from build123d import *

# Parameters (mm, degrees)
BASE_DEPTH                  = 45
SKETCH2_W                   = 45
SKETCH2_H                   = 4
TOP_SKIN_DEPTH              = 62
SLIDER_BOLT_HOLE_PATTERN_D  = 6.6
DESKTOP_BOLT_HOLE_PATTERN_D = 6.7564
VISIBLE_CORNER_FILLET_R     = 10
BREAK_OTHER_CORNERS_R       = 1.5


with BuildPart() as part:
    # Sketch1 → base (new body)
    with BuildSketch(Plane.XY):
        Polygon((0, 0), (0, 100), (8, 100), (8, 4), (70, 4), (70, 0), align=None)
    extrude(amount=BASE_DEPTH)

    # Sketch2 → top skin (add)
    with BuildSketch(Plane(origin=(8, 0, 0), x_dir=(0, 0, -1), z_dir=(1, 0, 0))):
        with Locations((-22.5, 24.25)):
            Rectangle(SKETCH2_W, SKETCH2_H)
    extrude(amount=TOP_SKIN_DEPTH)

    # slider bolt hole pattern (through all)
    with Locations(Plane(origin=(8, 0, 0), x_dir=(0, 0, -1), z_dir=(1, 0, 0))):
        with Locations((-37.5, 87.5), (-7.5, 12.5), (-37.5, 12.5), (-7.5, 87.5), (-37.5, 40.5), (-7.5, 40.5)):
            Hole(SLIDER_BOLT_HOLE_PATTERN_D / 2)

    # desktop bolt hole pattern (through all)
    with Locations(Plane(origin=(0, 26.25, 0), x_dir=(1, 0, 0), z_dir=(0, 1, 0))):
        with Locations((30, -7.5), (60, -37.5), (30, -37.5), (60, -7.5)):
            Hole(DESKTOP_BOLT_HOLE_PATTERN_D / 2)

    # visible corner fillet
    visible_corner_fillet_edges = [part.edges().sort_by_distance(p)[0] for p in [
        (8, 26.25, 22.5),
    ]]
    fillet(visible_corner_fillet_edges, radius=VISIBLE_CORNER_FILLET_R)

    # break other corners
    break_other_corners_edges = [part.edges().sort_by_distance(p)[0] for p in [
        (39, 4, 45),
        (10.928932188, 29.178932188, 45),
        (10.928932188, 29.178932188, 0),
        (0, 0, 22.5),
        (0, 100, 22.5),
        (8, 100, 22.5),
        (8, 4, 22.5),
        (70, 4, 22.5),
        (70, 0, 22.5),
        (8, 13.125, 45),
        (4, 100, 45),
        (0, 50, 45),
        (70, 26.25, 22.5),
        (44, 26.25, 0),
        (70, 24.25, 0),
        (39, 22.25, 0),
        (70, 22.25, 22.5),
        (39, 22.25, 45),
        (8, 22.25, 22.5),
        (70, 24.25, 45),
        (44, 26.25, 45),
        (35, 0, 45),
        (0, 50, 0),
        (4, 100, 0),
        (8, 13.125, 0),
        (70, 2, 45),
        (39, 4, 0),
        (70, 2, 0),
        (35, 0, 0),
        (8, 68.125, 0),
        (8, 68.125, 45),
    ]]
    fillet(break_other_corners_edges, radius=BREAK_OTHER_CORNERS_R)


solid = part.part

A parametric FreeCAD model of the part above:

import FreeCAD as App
import Part
import Sketcher
from FreeCAD import Vector


def edges_at(feature, points):
    """Names of the edges that pass closest to the given points."""
    edges = feature.Shape.Edges
    near = lambda p: min(range(len(edges)), key=lambda i: edges[i].distToShape(Part.Vertex(*p))[0])
    return sorted({f"Edge{near(p) + 1}" for p in points})

doc = App.newDocument("Part")
body = doc.addObject("PartDesign::Body", "Body")

sketch1 = doc.addObject("Sketcher::SketchObject", "Sketch")
body.addObject(sketch1)
sketch1.AttachmentSupport = (doc.XY_Plane, [""])
sketch1.MapMode = "FlatFace"
sketch1.addGeometry([
    Part.LineSegment(Vector(0, 100, 0), Vector(0, 0, 0)),
    Part.LineSegment(Vector(0, 0, 0), Vector(70, 0, 0)),
    Part.LineSegment(Vector(70, 0, 0), Vector(70, 4, 0)),
    Part.LineSegment(Vector(70, 4, 0), Vector(8, 4, 0)),
    Part.LineSegment(Vector(8, 4, 0), Vector(8, 100, 0)),
    Part.LineSegment(Vector(8, 100, 0), Vector(0, 100, 0)),
], False)
sketch1.addConstraint([
    Sketcher.Constraint("Coincident", 0, 2, 1, 1),
    Sketcher.Constraint("Coincident", 1, 2, 2, 1),
    Sketcher.Constraint("Coincident", 2, 2, 3, 1),
    Sketcher.Constraint("Coincident", 3, 2, 4, 1),
    Sketcher.Constraint("Coincident", 4, 2, 5, 1),
    Sketcher.Constraint("Coincident", 5, 2, 0, 1),
    Sketcher.Constraint("Vertical", 0),
    Sketcher.Constraint("Horizontal", 1),
    Sketcher.Constraint("Vertical", 2),
    Sketcher.Constraint("Horizontal", 3),
    Sketcher.Constraint("Vertical", 4),
    Sketcher.Constraint("Horizontal", 5),
    Sketcher.Constraint("Coincident", 0, 2, -1, 1),
    Sketcher.Constraint("DistanceX", 1, 1, 1, 2, 70.0),
    Sketcher.Constraint("DistanceX", 3, 2, 3, 1, 62.0),
    Sketcher.Constraint("DistanceY", 0, 2, 0, 1, 100.0),
    Sketcher.Constraint("DistanceY", 2, 1, 2, 2, 4.0),
])
pad1 = doc.addObject("PartDesign::Pad", "Pad")
body.addObject(pad1)
pad1.Profile = sketch1
pad1.Length = 45

sketch2 = doc.addObject("Sketcher::SketchObject", "Sketch001")
body.addObject(sketch2)
sketch2.AttachmentSupport = (doc.YZ_Plane, [""])
sketch2.MapMode = "FlatFace"
sketch2.AttachmentOffset = App.Placement(Vector(0, 0, 8), App.Rotation())
sketch2.addGeometry([
    Part.LineSegment(Vector(26.2, 45, 0), Vector(22.2, 45, 0)),
    Part.LineSegment(Vector(22.2, 45, 0), Vector(22.2, 0, 0)),
    Part.LineSegment(Vector(22.2, 0, 0), Vector(26.2, 0, 0)),
    Part.LineSegment(Vector(26.2, 0, 0), Vector(26.2, 45, 0)),
], False)
sketch2.addConstraint([
    Sketcher.Constraint("Coincident", 0, 2, 1, 1),
    Sketcher.Constraint("Coincident", 1, 2, 2, 1),
    Sketcher.Constraint("Coincident", 2, 2, 3, 1),
    Sketcher.Constraint("Coincident", 3, 2, 0, 1),
    Sketcher.Constraint("Horizontal", 0),
    Sketcher.Constraint("Vertical", 1),
    Sketcher.Constraint("Horizontal", 2),
    Sketcher.Constraint("Vertical", 3),
    Sketcher.Constraint("PointOnObject", 1, 2, -1),
    Sketcher.Constraint("DistanceX", 0, 2, 0, 1, 4.0),
    Sketcher.Constraint("DistanceY", 1, 2, 1, 1, 45.0),
    Sketcher.Constraint("DistanceX", -1, 1, 0, 2, 22.25),
])
pad2 = doc.addObject("PartDesign::Pad", "Pad001")
body.addObject(pad2)
pad2.Profile = sketch2
pad2.Length = 62

sketch3 = doc.addObject("Sketcher::SketchObject", "Sketch002")
body.addObject(sketch3)
sketch3.AttachmentSupport = (doc.YZ_Plane, [""])
sketch3.MapMode = "FlatFace"
sketch3.AttachmentOffset = App.Placement(Vector(0, 0, 8), App.Rotation())
sketch3.addGeometry([
    Part.Circle(Vector(87.5, 37.5, 0), Vector(0, 0, 1), 3.3),
    Part.Circle(Vector(12.5, 7.5, 0), Vector(0, 0, 1), 3.3),
    Part.Circle(Vector(12.5, 37.5, 0), Vector(0, 0, 1), 3.3),
    Part.Circle(Vector(87.5, 7.5, 0), Vector(0, 0, 1), 3.3),
    Part.Circle(Vector(40.5, 37.5, 0), Vector(0, 0, 1), 3.3),
    Part.Circle(Vector(40.5, 7.5, 0), Vector(0, 0, 1), 3.3),
], False)
sketch3.addConstraint([
    Sketcher.Constraint("Equal", 0, 1),
    Sketcher.Constraint("Equal", 1, 2),
    Sketcher.Constraint("Equal", 2, 3),
    Sketcher.Constraint("Equal", 3, 4),
    Sketcher.Constraint("Equal", 4, 5),
    Sketcher.Constraint("Horizontal", 0, 3, 2, 3),
    Sketcher.Constraint("Horizontal", 1, 3, 3, 3),
    Sketcher.Constraint("Horizontal", 2, 3, 4, 3),
    Sketcher.Constraint("Horizontal", 3, 3, 5, 3),
    Sketcher.Constraint("Vertical", 1, 3, 2, 3),
    Sketcher.Constraint("Vertical", 0, 3, 3, 3),
    Sketcher.Constraint("Vertical", 4, 3, 5, 3),
    Sketcher.Constraint("Diameter", 0, 6.6),
    Sketcher.Constraint("DistanceX", 1, 3, 0, 3, 75.0),
    Sketcher.Constraint("DistanceY", 1, 3, 0, 3, 30.0),
    Sketcher.Constraint("DistanceX", 2, 3, 4, 3, 28.0),
    Sketcher.Constraint("DistanceX", -1, 1, 0, 3, 87.5),
    Sketcher.Constraint("DistanceY", -1, 1, 0, 3, 37.5),
])
doc.recompute()
hole = doc.addObject("PartDesign::Hole", "Hole")
body.addObject(hole)
hole.Profile = sketch3
hole.ThreadType = "None"
hole.Diameter = 6.6
hole.DepthType = "ThroughAll"

sketch4 = doc.addObject("Sketcher::SketchObject", "Sketch003")
body.addObject(sketch4)
sketch4.AttachmentSupport = (doc.XZ_Plane, [""])
sketch4.MapMode = "FlatFace"
sketch4.AttachmentOffset = App.Placement(Vector(0, 0, -26.25), App.Rotation())
sketch4.addGeometry([
    Part.Circle(Vector(30, 7.5, 0), Vector(0, 0, 1), 3.4),
    Part.Circle(Vector(60, 37.5, 0), Vector(0, 0, 1), 3.4),
    Part.Circle(Vector(30, 37.5, 0), Vector(0, 0, 1), 3.4),
    Part.Circle(Vector(60, 7.5, 0), Vector(0, 0, 1), 3.4),
], False)
sketch4.addConstraint([
    Sketcher.Constraint("Equal", 0, 1),
    Sketcher.Constraint("Equal", 1, 2),
    Sketcher.Constraint("Equal", 2, 3),
    Sketcher.Constraint("Horizontal", 1, 3, 2, 3),
    Sketcher.Constraint("Horizontal", 0, 3, 3, 3),
    Sketcher.Constraint("Vertical", 0, 3, 2, 3),
    Sketcher.Constraint("Vertical", 1, 3, 3, 3),
    Sketcher.Constraint("DistanceX", -1, 1, 0, 3, 30.0),
    Sketcher.Constraint("DistanceX", -1, 1, 1, 3, 60.0),
    Sketcher.Constraint("DistanceY", 0, 3, 1, 3, 30.0),
    Sketcher.Constraint("Diameter", 0, 6.7564),
    Sketcher.Constraint("DistanceY", -1, 1, 0, 3, 7.5),
])
doc.recompute()
hole2 = doc.addObject("PartDesign::Hole", "Hole001")
body.addObject(hole2)
hole2.Profile = sketch4
hole2.ThreadType = "None"
hole2.Diameter = 6.7564
hole2.DepthType = "ThroughAll"
hole2.Reversed = True
doc.recompute()

fillet = doc.addObject("PartDesign::Fillet", "Fillet")
body.addObject(fillet)
fillet.Base = (hole2, edges_at(hole2, [(8, 26.25, 22.5)]))
fillet.Radius = 10
doc.recompute()

fillet2 = doc.addObject("PartDesign::Fillet", "Fillet001")
body.addObject(fillet2)
fillet2.Base = (fillet, edges_at(fillet, [
    (39, 4, 45),
    (10.929, 29.179, 45),
    (10.929, 29.179, 0),
    (0, 0, 22.5),
    (0, 100, 22.5),
    (8, 100, 22.5),
    (8, 4, 22.5),
    (70, 4, 22.5),
    (70, 0, 22.5),
    (8, 13.125, 45),
    (4, 100, 45),
    (0, 50, 45),
    (70, 26.25, 22.5),
    (44, 26.25, 0),
    (70, 24.25, 0),
    (39, 22.25, 0),
    (70, 22.25, 22.5),
    (39, 22.25, 45),
    (8, 22.25, 22.5),
    (70, 24.25, 45),
    (44, 26.25, 45),
    (35, 0, 45),
    (0, 50, 0),
    (4, 100, 0),
    (8, 13.125, 0),
    (70, 2, 45),
    (39, 4, 0),
    (70, 2, 0),
    (35, 0, 0),
    (8, 68.125, 0),
    (8, 68.125, 45),
]))
fillet2.Radius = 1.5

doc.recompute()
